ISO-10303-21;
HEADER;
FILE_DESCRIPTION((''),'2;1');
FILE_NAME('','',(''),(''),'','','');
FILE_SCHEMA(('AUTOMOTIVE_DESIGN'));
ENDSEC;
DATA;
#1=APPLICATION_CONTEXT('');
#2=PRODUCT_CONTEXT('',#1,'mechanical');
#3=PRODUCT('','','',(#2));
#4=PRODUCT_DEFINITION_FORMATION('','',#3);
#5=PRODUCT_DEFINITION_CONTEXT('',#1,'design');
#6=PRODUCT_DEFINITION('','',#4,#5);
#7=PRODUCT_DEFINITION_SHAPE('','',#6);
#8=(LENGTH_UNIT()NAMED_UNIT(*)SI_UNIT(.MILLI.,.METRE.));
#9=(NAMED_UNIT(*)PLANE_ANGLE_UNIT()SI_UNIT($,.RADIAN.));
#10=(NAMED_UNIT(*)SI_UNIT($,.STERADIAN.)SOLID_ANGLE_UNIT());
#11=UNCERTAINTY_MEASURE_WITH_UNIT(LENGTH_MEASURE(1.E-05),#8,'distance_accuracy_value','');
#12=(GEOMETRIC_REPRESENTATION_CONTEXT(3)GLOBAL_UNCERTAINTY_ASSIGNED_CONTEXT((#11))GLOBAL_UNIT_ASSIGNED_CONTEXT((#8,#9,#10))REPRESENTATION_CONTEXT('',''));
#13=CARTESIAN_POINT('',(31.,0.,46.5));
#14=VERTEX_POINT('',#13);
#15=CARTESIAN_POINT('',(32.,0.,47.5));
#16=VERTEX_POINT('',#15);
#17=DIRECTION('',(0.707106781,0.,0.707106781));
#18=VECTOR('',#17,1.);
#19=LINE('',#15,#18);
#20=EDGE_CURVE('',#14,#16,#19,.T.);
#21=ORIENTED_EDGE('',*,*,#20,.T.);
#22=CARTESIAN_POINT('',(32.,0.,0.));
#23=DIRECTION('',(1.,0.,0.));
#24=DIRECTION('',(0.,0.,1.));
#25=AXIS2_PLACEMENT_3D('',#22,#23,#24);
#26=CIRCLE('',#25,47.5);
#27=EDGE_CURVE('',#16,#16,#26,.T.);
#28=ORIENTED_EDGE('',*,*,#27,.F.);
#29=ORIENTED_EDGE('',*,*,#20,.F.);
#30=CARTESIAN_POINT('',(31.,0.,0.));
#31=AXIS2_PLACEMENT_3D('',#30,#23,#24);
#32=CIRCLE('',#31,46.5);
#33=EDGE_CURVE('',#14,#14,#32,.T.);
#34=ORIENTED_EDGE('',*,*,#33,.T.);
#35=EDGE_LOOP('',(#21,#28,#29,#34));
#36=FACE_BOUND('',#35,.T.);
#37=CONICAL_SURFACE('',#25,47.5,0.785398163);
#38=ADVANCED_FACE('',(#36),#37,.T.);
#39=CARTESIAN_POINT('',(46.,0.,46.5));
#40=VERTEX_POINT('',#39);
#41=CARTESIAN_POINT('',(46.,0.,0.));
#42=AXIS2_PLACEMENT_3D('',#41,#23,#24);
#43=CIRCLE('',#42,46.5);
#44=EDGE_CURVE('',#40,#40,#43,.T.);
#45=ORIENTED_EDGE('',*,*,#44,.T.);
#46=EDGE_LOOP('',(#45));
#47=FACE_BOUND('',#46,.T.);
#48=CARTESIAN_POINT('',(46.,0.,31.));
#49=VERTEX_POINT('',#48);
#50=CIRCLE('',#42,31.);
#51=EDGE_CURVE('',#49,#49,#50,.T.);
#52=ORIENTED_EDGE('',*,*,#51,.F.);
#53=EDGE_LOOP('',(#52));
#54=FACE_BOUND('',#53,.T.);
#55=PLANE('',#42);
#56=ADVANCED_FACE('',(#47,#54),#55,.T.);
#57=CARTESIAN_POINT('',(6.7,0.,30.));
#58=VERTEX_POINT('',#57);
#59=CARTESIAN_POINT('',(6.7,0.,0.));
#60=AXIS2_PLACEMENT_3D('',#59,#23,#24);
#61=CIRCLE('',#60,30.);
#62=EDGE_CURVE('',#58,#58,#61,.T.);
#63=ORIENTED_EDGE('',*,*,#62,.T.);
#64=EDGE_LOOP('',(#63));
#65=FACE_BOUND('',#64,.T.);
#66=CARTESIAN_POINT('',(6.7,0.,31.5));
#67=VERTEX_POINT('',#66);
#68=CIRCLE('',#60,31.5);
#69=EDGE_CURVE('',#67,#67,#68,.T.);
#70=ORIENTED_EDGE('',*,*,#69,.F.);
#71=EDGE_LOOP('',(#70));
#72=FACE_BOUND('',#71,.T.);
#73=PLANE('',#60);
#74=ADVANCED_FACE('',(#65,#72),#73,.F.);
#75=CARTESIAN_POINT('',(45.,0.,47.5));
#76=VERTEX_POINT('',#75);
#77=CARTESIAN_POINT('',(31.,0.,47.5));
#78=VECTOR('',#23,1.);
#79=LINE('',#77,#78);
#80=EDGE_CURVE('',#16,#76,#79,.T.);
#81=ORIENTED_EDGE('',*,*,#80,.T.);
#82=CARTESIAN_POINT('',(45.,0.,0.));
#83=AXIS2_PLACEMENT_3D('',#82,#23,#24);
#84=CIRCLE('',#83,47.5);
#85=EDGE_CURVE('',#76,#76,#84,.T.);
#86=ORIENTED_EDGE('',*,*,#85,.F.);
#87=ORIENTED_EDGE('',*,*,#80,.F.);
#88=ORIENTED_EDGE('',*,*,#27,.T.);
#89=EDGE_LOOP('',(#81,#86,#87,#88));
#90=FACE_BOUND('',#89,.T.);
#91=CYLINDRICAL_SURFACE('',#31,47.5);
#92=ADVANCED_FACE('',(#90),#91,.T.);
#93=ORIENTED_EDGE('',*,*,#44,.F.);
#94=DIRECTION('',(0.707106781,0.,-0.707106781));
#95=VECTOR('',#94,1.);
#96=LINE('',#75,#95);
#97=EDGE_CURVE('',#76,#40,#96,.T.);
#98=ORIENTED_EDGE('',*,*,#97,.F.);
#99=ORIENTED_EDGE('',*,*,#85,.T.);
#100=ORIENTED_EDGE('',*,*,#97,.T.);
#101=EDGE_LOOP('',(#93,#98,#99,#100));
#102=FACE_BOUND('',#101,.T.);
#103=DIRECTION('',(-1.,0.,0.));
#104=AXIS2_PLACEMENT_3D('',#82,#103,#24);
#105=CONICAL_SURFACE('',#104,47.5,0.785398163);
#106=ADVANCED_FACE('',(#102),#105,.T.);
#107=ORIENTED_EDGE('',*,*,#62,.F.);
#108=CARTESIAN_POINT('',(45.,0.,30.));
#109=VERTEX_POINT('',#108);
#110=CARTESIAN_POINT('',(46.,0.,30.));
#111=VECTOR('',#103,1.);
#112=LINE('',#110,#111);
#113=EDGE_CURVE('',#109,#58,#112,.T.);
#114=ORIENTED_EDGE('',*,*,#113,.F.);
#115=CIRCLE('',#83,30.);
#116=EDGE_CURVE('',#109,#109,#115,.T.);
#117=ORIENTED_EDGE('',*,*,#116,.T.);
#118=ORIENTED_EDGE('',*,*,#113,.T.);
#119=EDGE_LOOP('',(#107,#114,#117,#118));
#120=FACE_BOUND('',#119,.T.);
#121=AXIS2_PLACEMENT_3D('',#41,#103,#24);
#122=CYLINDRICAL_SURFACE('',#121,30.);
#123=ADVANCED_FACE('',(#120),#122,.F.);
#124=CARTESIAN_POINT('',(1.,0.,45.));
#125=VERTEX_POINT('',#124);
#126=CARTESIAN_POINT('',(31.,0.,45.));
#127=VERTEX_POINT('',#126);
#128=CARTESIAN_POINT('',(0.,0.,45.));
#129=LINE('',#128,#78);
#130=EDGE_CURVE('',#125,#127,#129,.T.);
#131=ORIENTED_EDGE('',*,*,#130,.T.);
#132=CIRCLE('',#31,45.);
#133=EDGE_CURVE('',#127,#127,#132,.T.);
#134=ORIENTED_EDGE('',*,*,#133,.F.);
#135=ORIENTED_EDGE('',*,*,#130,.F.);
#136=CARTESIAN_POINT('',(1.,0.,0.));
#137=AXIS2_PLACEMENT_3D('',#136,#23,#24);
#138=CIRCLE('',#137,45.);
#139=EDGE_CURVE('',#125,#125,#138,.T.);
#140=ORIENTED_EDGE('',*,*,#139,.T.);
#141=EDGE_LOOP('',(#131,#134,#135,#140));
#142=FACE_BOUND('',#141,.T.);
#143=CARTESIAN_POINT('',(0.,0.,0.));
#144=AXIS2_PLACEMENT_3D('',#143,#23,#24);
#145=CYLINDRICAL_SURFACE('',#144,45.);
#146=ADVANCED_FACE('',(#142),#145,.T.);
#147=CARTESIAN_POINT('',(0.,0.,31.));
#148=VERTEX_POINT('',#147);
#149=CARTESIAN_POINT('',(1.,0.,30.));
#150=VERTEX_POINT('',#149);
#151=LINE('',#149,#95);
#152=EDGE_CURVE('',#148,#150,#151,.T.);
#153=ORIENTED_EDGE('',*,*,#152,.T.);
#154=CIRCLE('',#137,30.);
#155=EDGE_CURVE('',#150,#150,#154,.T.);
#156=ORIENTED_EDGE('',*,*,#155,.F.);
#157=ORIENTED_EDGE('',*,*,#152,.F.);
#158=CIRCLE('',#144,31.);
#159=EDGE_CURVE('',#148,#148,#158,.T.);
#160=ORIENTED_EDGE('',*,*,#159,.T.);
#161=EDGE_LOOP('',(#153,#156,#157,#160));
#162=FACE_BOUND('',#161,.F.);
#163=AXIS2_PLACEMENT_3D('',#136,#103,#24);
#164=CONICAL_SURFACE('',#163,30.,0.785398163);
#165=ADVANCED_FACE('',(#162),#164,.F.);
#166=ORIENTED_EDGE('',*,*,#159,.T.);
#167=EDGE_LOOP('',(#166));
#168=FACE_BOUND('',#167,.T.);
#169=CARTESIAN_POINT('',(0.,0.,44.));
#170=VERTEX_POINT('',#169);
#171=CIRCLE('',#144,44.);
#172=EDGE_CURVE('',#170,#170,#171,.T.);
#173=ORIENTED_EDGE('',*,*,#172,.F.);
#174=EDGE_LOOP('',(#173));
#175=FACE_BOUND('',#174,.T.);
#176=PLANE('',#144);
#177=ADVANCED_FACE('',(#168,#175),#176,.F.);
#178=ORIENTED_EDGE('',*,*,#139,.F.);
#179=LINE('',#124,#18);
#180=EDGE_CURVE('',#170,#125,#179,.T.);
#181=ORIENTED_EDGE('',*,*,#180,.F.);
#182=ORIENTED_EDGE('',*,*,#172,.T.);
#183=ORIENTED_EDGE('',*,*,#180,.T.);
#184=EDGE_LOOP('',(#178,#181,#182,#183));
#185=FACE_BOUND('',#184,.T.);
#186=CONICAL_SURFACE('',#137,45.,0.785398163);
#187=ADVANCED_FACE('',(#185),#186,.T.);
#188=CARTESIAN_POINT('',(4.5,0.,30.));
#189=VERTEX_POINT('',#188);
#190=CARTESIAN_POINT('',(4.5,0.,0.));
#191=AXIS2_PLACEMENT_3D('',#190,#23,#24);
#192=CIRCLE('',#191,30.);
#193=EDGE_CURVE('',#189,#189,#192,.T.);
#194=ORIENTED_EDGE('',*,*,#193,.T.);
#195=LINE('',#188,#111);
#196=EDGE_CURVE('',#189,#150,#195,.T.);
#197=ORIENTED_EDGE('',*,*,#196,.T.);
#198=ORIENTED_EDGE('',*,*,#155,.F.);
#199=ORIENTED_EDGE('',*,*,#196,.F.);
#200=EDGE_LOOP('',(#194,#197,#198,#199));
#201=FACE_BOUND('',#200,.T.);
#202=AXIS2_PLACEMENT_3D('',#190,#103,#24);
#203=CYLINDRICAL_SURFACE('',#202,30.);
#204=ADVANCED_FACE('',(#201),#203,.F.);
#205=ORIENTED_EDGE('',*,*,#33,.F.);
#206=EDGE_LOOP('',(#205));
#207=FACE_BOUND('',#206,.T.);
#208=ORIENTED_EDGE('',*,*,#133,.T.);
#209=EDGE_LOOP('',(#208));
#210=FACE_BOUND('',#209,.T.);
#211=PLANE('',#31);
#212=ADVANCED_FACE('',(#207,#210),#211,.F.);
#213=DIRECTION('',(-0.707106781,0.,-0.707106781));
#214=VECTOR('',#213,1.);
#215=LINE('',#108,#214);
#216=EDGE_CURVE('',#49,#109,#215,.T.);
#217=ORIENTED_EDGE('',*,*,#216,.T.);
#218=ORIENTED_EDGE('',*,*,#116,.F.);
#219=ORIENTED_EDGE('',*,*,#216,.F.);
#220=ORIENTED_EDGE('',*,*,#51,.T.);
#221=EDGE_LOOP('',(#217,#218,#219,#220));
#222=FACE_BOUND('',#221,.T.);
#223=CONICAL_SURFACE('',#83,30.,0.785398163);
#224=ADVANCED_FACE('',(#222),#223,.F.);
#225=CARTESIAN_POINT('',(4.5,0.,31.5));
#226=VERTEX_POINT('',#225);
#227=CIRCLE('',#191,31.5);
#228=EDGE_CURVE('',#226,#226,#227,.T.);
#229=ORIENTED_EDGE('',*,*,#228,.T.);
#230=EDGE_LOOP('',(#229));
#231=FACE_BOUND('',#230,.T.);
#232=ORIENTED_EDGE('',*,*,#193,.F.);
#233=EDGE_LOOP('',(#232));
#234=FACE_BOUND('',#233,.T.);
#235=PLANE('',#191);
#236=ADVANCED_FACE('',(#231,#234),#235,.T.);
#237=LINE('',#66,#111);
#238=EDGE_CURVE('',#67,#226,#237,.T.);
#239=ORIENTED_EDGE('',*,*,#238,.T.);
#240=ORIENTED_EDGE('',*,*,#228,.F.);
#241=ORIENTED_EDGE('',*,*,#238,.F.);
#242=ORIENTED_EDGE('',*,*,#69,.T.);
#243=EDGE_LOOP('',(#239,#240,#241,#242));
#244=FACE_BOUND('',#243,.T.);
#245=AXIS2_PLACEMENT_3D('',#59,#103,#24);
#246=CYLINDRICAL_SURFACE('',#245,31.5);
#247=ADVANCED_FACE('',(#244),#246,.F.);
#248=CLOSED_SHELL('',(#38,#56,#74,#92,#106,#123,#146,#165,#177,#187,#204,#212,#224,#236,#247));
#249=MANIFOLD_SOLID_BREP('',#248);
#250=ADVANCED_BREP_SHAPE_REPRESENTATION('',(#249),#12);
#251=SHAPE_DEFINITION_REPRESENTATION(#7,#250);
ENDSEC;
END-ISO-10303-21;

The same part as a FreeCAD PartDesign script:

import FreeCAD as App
import Part
import Sketcher


def edges_at(feature, points):
    """Names of the edges that pass closest to the given points."""
    edges = feature.Shape.Edges
    near = lambda p: min(range(len(edges)), key=lambda i: edges[i].distToShape(Part.Vertex(*p))[0])
    return sorted({f"Edge{near(p) + 1}" for p in points})


def add_polygon(sketch, points):
    """Adds a closed chain of lines whose ends are joined by coincident constraints."""
    first, n = sketch.GeometryCount, len(points)
    for a, b in zip(points, points[1:] + points[:1]):
        sketch.addGeometry(Part.LineSegment(App.Vector(*a, 0), App.Vector(*b, 0)), False)
    for i in range(n):
        sketch.addConstraint(Sketcher.Constraint("Coincident", first + i, 2, first + (i + 1) % n, 1))

doc = App.newDocument("Part")
body = doc.addObject("PartDesign::Body", "Body")

# Sketch on XY plane
sketch1 = body.newObject("Sketcher::SketchObject", "Sketch")
sketch1.AttachmentSupport = (doc.getObject("XY_Plane"), [""])
sketch1.MapMode = "FlatFace"
add_polygon(sketch1, [(0, 45), (0, 30), (4.5, 30), (4.5, 31.5), (6.7, 31.5), (6.7, 30), (46, 30), (46, 47.5), (31, 47.5), (31, 45)])  # lines 0-9
sketch1.addConstraint(Sketcher.Constraint("Vertical", 0))
sketch1.addConstraint(Sketcher.Constraint("Horizontal", 1))
sketch1.addConstraint(Sketcher.Constraint("Vertical", 2))
sketch1.addConstraint(Sketcher.Constraint("Horizontal", 3))
sketch1.addConstraint(Sketcher.Constraint("Vertical", 4))
sketch1.addConstraint(Sketcher.Constraint("Horizontal", 5))
sketch1.addConstraint(Sketcher.Constraint("Vertical", 6))
sketch1.addConstraint(Sketcher.Constraint("Horizontal", 7))
sketch1.addConstraint(Sketcher.Constraint("Vertical", 8))
sketch1.addConstraint(Sketcher.Constraint("Horizontal", 9))
sketch1.addConstraint(Sketcher.Constraint("PointOnObject", 0, 2, -2))
sketch1.addConstraint(Sketcher.Constraint("Horizontal", 1, 2, 4, 2))
sketch1.addConstraint(Sketcher.Constraint("Equal", 7, 0))
sketch1.addConstraint(Sketcher.Constraint("DistanceX", 7, 2, 7, 1, 15.0))
sketch1.addConstraint(Sketcher.Constraint("DistanceX", 9, 2, 9, 1, 31.0))
sketch1.addConstraint(Sketcher.Constraint("DistanceX", 1, 1, 1, 2, 4.5))
sketch1.addConstraint(Sketcher.Constraint("DistanceX", 3, 1, 3, 2, 2.2))
sketch1.addConstraint(Sketcher.Constraint("DistanceY", 2, 1, 2, 2, 1.5))
sketch1.addConstraint(Sketcher.Constraint("DistanceY", 6, 1, 6, 2, 17.5))
sketch1.addConstraint(Sketcher.Constraint("DistanceY", -1, 1, 0, 2, 30.0))
revolution = body.newObject("PartDesign::Revolution", "Revolution")
revolution.Profile = sketch1
revolution.ReferenceAxis = (sketch1, ["H_Axis"])
revolution.Angle = 360
doc.recompute()

chamfer = body.newObject("PartDesign::Chamfer", "Chamfer")
chamfer.Base = (revolution, edges_at(revolution, [
    (0, 0, -30),
    (0, 0, -45),
    (31, 0, -47.5),
    (46, 0, -47.5),
    (46, 0, -30),
]))
chamfer.Size = 1

doc.recompute()
